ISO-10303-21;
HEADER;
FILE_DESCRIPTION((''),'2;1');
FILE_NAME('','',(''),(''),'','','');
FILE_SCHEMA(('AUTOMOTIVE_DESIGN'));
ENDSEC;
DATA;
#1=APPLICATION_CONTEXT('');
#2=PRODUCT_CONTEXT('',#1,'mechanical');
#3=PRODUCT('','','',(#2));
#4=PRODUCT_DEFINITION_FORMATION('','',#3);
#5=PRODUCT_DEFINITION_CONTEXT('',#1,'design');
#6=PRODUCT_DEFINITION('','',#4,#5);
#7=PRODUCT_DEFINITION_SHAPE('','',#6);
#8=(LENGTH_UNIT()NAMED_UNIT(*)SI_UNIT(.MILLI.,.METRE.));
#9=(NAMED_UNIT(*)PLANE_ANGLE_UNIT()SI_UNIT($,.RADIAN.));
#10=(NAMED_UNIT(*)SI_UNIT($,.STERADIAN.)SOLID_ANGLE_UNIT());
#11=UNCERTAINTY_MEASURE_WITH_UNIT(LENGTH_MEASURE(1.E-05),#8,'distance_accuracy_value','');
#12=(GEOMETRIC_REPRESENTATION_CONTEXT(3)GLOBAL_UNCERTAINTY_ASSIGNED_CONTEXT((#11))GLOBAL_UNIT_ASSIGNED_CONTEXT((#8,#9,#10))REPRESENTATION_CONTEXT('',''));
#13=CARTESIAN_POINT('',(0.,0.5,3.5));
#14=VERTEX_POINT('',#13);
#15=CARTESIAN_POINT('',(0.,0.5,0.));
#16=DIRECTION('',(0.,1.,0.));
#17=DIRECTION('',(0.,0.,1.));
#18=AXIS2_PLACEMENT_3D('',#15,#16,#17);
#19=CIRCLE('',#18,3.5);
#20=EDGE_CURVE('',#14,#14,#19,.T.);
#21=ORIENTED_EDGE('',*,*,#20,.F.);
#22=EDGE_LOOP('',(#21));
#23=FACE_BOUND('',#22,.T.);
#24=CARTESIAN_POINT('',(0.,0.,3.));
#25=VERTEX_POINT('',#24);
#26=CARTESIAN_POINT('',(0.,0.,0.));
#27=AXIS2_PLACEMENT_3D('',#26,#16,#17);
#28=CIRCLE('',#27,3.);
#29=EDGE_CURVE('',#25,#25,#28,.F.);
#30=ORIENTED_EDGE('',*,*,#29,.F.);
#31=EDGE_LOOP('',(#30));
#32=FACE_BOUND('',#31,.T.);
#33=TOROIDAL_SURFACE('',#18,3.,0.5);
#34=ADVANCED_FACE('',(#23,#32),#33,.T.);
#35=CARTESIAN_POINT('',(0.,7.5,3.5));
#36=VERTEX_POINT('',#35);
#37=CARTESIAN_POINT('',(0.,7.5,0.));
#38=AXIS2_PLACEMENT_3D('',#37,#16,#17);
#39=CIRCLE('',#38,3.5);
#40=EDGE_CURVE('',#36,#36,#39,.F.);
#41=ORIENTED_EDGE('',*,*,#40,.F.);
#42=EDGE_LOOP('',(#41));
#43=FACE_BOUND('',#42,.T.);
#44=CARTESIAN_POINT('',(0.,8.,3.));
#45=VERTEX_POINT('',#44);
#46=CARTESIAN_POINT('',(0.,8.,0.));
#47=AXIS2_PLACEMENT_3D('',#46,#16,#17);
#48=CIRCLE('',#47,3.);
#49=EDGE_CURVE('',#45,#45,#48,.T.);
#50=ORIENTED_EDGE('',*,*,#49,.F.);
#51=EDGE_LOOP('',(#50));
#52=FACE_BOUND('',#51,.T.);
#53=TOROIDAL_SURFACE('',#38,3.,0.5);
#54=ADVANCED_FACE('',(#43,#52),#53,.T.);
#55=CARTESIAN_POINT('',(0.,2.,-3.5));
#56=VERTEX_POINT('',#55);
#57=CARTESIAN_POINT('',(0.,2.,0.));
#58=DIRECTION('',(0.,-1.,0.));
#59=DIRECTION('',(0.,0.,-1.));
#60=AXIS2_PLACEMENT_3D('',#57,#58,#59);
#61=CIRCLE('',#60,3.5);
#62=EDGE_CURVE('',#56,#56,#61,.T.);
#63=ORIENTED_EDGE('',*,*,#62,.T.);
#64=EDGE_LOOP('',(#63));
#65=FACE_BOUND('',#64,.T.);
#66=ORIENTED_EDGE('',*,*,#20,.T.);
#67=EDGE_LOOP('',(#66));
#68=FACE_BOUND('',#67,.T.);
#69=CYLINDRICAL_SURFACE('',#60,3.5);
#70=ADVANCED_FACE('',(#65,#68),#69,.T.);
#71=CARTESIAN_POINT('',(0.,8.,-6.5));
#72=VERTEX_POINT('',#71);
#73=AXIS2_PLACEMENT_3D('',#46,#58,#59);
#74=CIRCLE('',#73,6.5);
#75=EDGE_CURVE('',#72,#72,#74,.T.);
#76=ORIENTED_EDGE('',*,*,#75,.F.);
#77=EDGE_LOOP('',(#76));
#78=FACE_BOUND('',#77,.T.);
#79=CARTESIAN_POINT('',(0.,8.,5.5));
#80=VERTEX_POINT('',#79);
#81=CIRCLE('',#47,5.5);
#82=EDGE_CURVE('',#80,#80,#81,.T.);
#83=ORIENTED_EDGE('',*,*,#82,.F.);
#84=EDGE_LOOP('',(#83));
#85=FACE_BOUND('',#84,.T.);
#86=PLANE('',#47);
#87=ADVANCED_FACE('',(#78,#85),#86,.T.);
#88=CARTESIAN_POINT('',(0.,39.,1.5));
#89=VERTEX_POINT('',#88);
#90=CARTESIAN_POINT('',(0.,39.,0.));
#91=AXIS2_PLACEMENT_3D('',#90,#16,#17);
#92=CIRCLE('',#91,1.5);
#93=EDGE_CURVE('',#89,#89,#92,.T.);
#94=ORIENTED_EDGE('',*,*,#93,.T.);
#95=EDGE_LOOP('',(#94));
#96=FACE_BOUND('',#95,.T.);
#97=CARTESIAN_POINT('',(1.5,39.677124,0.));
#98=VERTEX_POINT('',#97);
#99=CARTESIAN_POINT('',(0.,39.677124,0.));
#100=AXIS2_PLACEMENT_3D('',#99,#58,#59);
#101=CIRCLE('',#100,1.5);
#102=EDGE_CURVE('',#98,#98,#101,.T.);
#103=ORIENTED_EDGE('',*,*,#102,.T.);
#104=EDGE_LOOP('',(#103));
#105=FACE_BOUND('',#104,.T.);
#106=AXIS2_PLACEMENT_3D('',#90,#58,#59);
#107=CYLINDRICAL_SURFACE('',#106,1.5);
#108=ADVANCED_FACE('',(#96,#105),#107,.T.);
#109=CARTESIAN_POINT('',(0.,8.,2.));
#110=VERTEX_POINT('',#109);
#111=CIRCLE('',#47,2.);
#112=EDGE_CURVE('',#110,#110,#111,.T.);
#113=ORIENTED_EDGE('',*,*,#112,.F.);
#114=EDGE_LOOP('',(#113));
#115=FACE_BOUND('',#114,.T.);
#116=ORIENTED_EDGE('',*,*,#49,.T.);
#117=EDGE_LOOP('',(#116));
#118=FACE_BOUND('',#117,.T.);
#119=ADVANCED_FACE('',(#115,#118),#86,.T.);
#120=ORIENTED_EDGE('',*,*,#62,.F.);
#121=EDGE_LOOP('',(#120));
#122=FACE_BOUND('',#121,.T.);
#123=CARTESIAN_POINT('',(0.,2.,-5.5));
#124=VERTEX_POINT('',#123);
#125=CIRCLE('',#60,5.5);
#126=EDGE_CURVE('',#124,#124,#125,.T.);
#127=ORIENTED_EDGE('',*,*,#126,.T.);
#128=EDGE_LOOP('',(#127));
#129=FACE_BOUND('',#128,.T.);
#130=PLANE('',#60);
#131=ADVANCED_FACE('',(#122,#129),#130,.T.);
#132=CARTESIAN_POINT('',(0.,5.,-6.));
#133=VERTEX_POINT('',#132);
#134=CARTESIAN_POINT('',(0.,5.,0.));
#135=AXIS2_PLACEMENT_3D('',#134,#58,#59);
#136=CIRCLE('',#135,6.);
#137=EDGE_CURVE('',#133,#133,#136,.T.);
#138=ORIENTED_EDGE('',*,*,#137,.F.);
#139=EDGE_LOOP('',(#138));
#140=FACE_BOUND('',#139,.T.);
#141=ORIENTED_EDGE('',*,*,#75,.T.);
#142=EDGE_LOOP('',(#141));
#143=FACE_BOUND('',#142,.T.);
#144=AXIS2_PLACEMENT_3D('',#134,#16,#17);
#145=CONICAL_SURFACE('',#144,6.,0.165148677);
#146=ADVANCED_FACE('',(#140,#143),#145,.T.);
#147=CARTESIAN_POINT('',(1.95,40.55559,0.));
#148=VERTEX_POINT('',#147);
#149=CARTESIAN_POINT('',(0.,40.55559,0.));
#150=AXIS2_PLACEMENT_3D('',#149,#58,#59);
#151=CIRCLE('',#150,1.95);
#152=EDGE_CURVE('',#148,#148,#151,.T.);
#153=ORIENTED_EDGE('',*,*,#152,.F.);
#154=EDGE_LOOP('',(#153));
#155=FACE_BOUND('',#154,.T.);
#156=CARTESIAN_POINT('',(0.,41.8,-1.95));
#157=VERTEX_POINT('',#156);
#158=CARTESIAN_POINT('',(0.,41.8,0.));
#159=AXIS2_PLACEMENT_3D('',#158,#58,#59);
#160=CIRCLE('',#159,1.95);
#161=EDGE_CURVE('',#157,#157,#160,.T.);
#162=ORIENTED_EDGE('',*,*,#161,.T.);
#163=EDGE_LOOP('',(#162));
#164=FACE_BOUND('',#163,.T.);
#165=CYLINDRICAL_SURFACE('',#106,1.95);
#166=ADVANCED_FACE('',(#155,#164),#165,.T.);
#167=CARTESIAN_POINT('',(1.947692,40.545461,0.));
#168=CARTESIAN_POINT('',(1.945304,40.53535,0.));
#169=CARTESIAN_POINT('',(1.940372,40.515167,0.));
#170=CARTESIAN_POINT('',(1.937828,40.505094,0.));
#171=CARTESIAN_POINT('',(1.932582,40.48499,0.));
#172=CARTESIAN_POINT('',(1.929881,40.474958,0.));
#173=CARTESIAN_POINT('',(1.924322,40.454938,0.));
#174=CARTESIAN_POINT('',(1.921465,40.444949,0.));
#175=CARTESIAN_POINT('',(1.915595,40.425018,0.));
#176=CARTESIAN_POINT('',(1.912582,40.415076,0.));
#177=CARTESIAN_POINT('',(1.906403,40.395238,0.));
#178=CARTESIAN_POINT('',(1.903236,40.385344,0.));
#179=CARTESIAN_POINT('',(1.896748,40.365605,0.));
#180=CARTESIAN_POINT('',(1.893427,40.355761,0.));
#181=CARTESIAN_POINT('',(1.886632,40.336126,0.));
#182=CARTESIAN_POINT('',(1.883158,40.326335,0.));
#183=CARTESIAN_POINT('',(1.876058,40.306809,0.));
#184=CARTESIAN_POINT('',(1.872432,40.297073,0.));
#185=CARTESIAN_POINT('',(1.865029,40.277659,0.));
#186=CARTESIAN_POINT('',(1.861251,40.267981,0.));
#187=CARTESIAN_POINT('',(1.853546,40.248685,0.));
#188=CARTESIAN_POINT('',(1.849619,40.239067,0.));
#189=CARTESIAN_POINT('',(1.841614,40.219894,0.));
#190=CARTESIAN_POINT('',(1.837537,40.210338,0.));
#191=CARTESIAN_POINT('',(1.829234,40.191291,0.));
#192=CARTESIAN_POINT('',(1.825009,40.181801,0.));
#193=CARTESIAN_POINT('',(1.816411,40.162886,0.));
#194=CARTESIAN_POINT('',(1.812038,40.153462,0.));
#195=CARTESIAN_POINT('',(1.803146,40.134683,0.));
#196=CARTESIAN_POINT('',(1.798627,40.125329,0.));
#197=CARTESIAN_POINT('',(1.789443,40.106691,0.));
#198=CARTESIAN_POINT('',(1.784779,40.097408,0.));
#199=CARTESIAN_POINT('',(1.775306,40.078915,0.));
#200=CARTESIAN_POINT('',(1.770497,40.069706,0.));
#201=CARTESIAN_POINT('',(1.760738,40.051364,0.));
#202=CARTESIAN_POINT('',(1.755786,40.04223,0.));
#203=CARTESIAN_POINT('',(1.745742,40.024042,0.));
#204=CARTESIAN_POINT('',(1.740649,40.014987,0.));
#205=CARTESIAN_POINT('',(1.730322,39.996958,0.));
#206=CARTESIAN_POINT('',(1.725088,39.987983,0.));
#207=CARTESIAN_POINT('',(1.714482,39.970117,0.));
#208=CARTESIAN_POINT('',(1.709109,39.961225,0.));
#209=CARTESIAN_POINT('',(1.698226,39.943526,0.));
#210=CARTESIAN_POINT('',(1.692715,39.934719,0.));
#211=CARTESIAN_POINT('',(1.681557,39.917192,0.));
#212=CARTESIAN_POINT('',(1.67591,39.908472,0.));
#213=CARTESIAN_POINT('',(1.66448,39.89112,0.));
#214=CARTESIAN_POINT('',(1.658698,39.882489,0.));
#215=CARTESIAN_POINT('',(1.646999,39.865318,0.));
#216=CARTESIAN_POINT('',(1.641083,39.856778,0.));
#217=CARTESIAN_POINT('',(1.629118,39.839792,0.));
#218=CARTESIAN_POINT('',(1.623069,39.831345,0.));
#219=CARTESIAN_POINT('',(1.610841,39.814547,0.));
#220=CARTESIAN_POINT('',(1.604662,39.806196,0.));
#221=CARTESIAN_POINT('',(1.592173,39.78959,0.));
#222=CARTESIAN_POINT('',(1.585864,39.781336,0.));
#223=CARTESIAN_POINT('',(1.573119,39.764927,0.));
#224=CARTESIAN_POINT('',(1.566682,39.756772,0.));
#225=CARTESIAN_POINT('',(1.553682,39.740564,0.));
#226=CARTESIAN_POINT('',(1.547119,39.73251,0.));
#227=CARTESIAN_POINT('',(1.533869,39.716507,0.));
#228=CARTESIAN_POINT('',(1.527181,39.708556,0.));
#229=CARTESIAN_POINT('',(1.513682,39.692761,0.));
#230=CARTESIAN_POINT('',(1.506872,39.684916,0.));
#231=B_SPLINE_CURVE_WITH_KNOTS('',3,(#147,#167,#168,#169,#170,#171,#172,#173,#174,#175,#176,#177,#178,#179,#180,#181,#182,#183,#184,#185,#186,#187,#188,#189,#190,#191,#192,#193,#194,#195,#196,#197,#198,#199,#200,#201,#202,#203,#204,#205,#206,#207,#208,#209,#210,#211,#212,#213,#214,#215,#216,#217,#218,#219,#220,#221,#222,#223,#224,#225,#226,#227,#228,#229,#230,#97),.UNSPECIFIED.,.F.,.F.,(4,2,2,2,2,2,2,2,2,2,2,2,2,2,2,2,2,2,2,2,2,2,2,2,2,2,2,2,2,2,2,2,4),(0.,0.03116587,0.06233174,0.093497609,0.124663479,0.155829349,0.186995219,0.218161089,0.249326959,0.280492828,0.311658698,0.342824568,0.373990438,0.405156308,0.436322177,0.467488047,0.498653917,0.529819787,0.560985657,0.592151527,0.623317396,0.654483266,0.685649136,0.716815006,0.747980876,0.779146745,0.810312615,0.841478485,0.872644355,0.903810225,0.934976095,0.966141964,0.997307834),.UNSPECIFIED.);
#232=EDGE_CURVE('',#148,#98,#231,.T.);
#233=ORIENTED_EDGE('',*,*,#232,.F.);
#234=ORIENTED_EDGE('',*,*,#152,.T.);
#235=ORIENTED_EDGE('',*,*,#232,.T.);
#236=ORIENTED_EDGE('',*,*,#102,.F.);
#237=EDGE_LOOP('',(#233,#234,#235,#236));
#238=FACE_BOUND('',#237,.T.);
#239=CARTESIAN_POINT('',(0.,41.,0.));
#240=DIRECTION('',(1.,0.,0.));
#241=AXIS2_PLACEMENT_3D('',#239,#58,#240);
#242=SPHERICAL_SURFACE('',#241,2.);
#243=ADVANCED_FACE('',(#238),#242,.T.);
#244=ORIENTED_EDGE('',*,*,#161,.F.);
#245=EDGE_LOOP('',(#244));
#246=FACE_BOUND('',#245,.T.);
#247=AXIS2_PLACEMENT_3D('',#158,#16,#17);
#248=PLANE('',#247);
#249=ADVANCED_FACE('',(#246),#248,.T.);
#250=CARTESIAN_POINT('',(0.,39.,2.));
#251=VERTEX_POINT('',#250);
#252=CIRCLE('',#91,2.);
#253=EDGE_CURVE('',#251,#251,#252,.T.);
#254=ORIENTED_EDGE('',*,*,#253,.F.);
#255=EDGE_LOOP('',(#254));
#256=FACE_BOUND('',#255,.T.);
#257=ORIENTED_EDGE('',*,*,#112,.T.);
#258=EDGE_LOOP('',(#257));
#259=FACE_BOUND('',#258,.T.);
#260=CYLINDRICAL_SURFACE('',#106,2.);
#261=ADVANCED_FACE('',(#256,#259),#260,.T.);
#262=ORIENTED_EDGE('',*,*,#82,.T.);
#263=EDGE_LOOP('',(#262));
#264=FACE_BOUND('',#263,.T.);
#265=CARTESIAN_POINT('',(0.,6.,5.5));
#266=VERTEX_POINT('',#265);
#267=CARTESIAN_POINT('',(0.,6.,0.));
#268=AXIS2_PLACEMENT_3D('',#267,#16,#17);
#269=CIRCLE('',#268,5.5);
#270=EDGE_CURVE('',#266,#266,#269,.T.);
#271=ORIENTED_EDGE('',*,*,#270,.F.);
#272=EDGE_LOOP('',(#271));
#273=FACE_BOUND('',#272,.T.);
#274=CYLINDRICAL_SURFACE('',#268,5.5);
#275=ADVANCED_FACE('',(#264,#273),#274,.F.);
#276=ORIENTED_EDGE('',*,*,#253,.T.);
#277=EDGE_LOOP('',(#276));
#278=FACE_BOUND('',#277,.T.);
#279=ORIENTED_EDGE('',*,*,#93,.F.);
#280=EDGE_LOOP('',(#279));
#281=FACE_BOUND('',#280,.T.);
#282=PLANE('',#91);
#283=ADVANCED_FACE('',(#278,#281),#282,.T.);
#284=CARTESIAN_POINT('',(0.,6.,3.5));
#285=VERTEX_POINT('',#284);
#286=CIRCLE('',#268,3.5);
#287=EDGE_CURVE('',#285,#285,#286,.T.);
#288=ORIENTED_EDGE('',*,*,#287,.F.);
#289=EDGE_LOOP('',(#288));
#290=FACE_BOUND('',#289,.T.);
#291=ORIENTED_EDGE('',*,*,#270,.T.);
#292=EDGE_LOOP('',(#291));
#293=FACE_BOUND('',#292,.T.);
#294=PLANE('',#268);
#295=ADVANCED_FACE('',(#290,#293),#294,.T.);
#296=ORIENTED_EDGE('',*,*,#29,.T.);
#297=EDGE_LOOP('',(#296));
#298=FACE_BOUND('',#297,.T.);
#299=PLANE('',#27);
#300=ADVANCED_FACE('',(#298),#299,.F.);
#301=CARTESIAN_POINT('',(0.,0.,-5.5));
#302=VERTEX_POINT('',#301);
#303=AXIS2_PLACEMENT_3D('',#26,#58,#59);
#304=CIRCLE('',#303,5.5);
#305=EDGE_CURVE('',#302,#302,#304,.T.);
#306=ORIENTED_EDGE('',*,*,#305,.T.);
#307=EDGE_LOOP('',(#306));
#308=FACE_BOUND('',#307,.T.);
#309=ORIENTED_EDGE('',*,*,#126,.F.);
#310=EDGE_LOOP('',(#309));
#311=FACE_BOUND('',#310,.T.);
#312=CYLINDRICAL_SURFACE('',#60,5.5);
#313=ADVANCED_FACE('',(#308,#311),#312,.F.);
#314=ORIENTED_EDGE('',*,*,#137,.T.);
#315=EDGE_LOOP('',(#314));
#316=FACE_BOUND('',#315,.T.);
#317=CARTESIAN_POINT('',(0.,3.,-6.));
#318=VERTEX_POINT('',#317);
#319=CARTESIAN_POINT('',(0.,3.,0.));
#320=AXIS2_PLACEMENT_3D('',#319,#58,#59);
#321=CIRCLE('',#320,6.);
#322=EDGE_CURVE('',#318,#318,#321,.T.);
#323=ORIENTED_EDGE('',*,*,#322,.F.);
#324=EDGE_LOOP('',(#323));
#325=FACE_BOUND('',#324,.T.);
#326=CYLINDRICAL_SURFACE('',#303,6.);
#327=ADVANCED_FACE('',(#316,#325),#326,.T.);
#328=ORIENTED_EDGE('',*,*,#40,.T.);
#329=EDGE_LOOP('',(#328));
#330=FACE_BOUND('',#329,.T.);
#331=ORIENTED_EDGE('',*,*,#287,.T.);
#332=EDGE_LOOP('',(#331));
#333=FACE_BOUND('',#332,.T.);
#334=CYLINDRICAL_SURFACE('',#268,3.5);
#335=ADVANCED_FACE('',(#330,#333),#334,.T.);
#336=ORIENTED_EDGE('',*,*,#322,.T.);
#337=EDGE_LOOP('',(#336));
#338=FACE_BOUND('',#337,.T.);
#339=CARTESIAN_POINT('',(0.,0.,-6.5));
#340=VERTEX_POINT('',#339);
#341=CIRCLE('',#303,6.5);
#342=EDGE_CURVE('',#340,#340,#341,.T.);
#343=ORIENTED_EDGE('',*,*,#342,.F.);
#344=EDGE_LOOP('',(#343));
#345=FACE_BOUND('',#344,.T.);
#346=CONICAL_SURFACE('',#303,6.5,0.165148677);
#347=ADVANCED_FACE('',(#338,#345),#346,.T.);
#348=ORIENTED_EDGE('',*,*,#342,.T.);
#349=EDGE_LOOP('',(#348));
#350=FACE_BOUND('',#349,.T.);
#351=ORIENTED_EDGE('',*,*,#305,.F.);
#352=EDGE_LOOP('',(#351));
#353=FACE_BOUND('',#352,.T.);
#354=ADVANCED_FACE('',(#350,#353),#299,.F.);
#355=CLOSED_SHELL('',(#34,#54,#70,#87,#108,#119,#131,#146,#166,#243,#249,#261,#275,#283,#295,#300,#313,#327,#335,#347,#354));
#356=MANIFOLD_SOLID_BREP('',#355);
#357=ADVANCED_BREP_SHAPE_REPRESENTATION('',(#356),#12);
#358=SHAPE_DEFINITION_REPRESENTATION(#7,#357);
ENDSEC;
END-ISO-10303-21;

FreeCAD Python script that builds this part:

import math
import FreeCAD as App
import Part
import Sketcher
Q = App.Units.Quantity


def edges_at(feature, points):
    """Names of the edges that pass closest to the given points."""
    edges = feature.Shape.Edges
    near = lambda p: min(range(len(edges)), key=lambda i: edges[i].distToShape(Part.Vertex(*p))[0])
    return sorted({f"Edge{near(p) + 1}" for p in points})


def add_polygon(sketch, points):
    """Adds a closed chain of lines whose ends are joined by coincident constraints."""
    first, n = sketch.GeometryCount, len(points)
    for a, b in zip(points, points[1:] + points[:1]):
        sketch.addGeometry(Part.LineSegment(App.Vector(*a, 0), App.Vector(*b, 0)), False)
    for i in range(n):
        sketch.addConstraint(Sketcher.Constraint("Coincident", first + i, 2, first + (i + 1) % n, 1))

doc = App.newDocument("Part")
body = doc.addObject("PartDesign::Body", "Body")

sketch1 = body.newObject("Sketcher::SketchObject", "Sketch")
sketch1.AttachmentSupport = (doc.getObject("XZ_Plane"), [""])
sketch1.MapMode = "FlatFace"
sketch1.addGeometry(Part.Circle(App.Vector(0, 0, 0), App.Vector(0, 0, 1), 6), False)
sketch1.addConstraint(Sketcher.Constraint("Coincident", 0, 3, -1, 1))
sketch1.addConstraint(Sketcher.Constraint("Diameter", 0, Q("13 mm")))
pad1 = body.newObject("PartDesign::Pad", "Pad")
pad1.Profile = sketch1
pad1.Length = 8
pad1.Reversed = True

sketch2 = body.newObject("Sketcher::SketchObject", "Sketch001")
sketch2.AttachmentSupport = (doc.getObject("XZ_Plane"), [""])
sketch2.MapMode = "FlatFace"
sketch2.AttachmentOffset = App.Placement(App.Vector(0, 0, -8), App.Rotation())
sketch2.addGeometry(Part.Circle(App.Vector(0, 0, 0), App.Vector(0, 0, 1), 2), False)
sketch2.addConstraint(Sketcher.Constraint("Coincident", 0, 3, -1, 1))
sketch2.addConstraint(Sketcher.Constraint("Diameter", 0, Q("4 mm")))
pad2 = body.newObject("PartDesign::Pad", "Pad001")
pad2.Profile = sketch2
pad2.Length = 31
pad2.Reversed = True

sketch3 = body.newObject("Sketcher::SketchObject", "Sketch002")
sketch3.AttachmentSupport = (doc.getObject("XY_Plane"), [""])
sketch3.MapMode = "FlatFace"
sketch3.addGeometry(Part.LineSegment(App.Vector(0, 41.8, 0), App.Vector(0, 39, 0)), False)
sketch3.addGeometry(Part.LineSegment(App.Vector(0, 39, 0), App.Vector(1.5, 39, 0)), False)
sketch3.addGeometry(Part.LineSegment(App.Vector(1.5, 39, 0), App.Vector(1.5, 39.7, 0)), False)
sketch3.addGeometry(Part.ArcOfCircle(Part.Circle(App.Vector(0, 41, 0), App.Vector(0, 0, 1), 2), math.radians(-41), math.radians(-13)), False)
sketch3.addGeometry(Part.LineSegment(App.Vector(1.9, 40.6, 0), App.Vector(1.9, 41.8, 0)), False)
sketch3.addGeometry(Part.LineSegment(App.Vector(1.9, 41.8, 0), App.Vector(0, 41.8, 0)), False)
sketch3.addConstraint(Sketcher.Constraint("Coincident", 0, 2, 1, 1))
sketch3.addConstraint(Sketcher.Constraint("Coincident", 1, 2, 2, 1))
sketch3.addConstraint(Sketcher.Constraint("Coincident", 2, 2, 3, 1))
sketch3.addConstraint(Sketcher.Constraint("Coincident", 3, 2, 4, 1))
sketch3.addConstraint(Sketcher.Constraint("Coincident", 4, 2, 5, 1))
sketch3.addConstraint(Sketcher.Constraint("Coincident", 5, 2, 0, 1))
sketch3.addConstraint(Sketcher.Constraint("Vertical", 0))
sketch3.addConstraint(Sketcher.Constraint("Horizontal", 1))
sketch3.addConstraint(Sketcher.Constraint("Vertical", 2))
sketch3.addConstraint(Sketcher.Constraint("Vertical", 4))
sketch3.addConstraint(Sketcher.Constraint("Horizontal", 5))
sketch3.addConstraint(Sketcher.Constraint("PointOnObject", 3, 3, -2))
sketch3.addConstraint(Sketcher.Constraint("PointOnObject", 0, 2, -2))
sketch3.addConstraint(Sketcher.Constraint("Radius", 3, Q("2 mm")))
sketch3.addConstraint(Sketcher.Constraint("DistanceX", 1, 1, 1, 2, Q("1.5 mm")))
sketch3.addConstraint(Sketcher.Constraint("DistanceY", 0, 2, 0, 1, Q("2.8 mm")))
sketch3.addConstraint(Sketcher.Constraint("DistanceY", -1, 1, 3, 3, Q("41 mm")))
sketch3.addConstraint(Sketcher.Constraint("DistanceY", -1, 1, 0, 2, Q("39 mm")))
sketch3.addConstraint(Sketcher.Constraint("DistanceX", 5, 2, 5, 1, Q("1.95 mm")))
revolution = body.newObject("PartDesign::Revolution", "Revolution")
revolution.Profile = sketch3
revolution.ReferenceAxis = (sketch3, ["V_Axis"])
revolution.Angle = 360

sketch4 = body.newObject("Sketcher::SketchObject", "Sketch003")
sketch4.AttachmentSupport = (doc.getObject("XY_Plane"), [""])
sketch4.MapMode = "FlatFace"
add_polygon(sketch4, [(-6.5, 8), (-6.5, 0), (-6, 3), (-6, 5)])
sketch4.addConstraint(Sketcher.Constraint("Vertical", 0))
sketch4.addConstraint(Sketcher.Constraint("Vertical", 2))
sketch4.addConstraint(Sketcher.Constraint("PointOnObject", 0, 2, -1))
sketch4.addConstraint(Sketcher.Constraint("Equal", 1, 3))
sketch4.addConstraint(Sketcher.Constraint("DistanceY", 0, 2, 0, 1, Q("8 mm")))
sketch4.addConstraint(Sketcher.Constraint("DistanceY", 2, 1, 2, 2, Q("2 mm")))
sketch4.addConstraint(Sketcher.Constraint("DistanceX", 1, 2, -1, 1, Q("6 mm")))
sketch4.addConstraint(Sketcher.Constraint("DistanceX", 0, 2, -1, 1, Q("6.5 mm")))
groove = body.newObject("PartDesign::Groove", "Groove")
groove.Profile = sketch4
groove.ReferenceAxis = (sketch4, ["V_Axis"])
groove.Angle = 360

sketch5 = body.newObject("Sketcher::SketchObject", "Sketch004")
sketch5.AttachmentSupport = (doc.getObject("XZ_Plane"), [""])
sketch5.MapMode = "FlatFace"
sketch5.addGeometry(Part.Circle(App.Vector(0, 0, 0), App.Vector(0, 0, 1), 5.5), False)
sketch5.addGeometry(Part.Circle(App.Vector(0, 0, 0), App.Vector(0, 0, 1), 3.5), False)
sketch5.addConstraint(Sketcher.Constraint("Coincident", 0, 3, -1, 1))
sketch5.addConstraint(Sketcher.Constraint("Coincident", 1, 3, -1, 1))
sketch5.addConstraint(Sketcher.Constraint("Diameter", 0, Q("11 mm")))
sketch5.addConstraint(Sketcher.Constraint("Diameter", 1, Q("7 mm")))
pocket1 = body.newObject("PartDesign::Pocket", "Pocket")
pocket1.Profile = sketch5
pocket1.Length = 2

sketch6 = body.newObject("Sketcher::SketchObject", "Sketch005")
sketch6.AttachmentSupport = (doc.getObject("XZ_Plane"), [""])
sketch6.MapMode = "FlatFace"
sketch6.AttachmentOffset = App.Placement(App.Vector(0, 0, -6), App.Rotation())
sketch6.addGeometry(Part.Circle(App.Vector(0, 0, 0), App.Vector(0, 0, 1), 5.5), False)
sketch6.addGeometry(Part.Circle(App.Vector(0, 0, 0), App.Vector(0, 0, 1), 3.5), False)
sketch6.addConstraint(Sketcher.Constraint("Coincident", 0, 3, -1, 1))
sketch6.addConstraint(Sketcher.Constraint("Coincident", 1, 3, -1, 1))
sketch6.addConstraint(Sketcher.Constraint("Diameter", 0, Q("11 mm")))
sketch6.addConstraint(Sketcher.Constraint("Diameter", 1, Q("7 mm")))
pocket2 = body.newObject("PartDesign::Pocket", "Pocket001")
pocket2.Profile = sketch6
pocket2.Length = 2
doc.recompute()

fillet = body.newObject("PartDesign::Fillet", "Fillet")
fillet.Base = (pocket2, edges_at(pocket2, [(0, 0, 3.5), (0, 8, 3.5)]))
fillet.Radius = 0.5

doc.recompute()
